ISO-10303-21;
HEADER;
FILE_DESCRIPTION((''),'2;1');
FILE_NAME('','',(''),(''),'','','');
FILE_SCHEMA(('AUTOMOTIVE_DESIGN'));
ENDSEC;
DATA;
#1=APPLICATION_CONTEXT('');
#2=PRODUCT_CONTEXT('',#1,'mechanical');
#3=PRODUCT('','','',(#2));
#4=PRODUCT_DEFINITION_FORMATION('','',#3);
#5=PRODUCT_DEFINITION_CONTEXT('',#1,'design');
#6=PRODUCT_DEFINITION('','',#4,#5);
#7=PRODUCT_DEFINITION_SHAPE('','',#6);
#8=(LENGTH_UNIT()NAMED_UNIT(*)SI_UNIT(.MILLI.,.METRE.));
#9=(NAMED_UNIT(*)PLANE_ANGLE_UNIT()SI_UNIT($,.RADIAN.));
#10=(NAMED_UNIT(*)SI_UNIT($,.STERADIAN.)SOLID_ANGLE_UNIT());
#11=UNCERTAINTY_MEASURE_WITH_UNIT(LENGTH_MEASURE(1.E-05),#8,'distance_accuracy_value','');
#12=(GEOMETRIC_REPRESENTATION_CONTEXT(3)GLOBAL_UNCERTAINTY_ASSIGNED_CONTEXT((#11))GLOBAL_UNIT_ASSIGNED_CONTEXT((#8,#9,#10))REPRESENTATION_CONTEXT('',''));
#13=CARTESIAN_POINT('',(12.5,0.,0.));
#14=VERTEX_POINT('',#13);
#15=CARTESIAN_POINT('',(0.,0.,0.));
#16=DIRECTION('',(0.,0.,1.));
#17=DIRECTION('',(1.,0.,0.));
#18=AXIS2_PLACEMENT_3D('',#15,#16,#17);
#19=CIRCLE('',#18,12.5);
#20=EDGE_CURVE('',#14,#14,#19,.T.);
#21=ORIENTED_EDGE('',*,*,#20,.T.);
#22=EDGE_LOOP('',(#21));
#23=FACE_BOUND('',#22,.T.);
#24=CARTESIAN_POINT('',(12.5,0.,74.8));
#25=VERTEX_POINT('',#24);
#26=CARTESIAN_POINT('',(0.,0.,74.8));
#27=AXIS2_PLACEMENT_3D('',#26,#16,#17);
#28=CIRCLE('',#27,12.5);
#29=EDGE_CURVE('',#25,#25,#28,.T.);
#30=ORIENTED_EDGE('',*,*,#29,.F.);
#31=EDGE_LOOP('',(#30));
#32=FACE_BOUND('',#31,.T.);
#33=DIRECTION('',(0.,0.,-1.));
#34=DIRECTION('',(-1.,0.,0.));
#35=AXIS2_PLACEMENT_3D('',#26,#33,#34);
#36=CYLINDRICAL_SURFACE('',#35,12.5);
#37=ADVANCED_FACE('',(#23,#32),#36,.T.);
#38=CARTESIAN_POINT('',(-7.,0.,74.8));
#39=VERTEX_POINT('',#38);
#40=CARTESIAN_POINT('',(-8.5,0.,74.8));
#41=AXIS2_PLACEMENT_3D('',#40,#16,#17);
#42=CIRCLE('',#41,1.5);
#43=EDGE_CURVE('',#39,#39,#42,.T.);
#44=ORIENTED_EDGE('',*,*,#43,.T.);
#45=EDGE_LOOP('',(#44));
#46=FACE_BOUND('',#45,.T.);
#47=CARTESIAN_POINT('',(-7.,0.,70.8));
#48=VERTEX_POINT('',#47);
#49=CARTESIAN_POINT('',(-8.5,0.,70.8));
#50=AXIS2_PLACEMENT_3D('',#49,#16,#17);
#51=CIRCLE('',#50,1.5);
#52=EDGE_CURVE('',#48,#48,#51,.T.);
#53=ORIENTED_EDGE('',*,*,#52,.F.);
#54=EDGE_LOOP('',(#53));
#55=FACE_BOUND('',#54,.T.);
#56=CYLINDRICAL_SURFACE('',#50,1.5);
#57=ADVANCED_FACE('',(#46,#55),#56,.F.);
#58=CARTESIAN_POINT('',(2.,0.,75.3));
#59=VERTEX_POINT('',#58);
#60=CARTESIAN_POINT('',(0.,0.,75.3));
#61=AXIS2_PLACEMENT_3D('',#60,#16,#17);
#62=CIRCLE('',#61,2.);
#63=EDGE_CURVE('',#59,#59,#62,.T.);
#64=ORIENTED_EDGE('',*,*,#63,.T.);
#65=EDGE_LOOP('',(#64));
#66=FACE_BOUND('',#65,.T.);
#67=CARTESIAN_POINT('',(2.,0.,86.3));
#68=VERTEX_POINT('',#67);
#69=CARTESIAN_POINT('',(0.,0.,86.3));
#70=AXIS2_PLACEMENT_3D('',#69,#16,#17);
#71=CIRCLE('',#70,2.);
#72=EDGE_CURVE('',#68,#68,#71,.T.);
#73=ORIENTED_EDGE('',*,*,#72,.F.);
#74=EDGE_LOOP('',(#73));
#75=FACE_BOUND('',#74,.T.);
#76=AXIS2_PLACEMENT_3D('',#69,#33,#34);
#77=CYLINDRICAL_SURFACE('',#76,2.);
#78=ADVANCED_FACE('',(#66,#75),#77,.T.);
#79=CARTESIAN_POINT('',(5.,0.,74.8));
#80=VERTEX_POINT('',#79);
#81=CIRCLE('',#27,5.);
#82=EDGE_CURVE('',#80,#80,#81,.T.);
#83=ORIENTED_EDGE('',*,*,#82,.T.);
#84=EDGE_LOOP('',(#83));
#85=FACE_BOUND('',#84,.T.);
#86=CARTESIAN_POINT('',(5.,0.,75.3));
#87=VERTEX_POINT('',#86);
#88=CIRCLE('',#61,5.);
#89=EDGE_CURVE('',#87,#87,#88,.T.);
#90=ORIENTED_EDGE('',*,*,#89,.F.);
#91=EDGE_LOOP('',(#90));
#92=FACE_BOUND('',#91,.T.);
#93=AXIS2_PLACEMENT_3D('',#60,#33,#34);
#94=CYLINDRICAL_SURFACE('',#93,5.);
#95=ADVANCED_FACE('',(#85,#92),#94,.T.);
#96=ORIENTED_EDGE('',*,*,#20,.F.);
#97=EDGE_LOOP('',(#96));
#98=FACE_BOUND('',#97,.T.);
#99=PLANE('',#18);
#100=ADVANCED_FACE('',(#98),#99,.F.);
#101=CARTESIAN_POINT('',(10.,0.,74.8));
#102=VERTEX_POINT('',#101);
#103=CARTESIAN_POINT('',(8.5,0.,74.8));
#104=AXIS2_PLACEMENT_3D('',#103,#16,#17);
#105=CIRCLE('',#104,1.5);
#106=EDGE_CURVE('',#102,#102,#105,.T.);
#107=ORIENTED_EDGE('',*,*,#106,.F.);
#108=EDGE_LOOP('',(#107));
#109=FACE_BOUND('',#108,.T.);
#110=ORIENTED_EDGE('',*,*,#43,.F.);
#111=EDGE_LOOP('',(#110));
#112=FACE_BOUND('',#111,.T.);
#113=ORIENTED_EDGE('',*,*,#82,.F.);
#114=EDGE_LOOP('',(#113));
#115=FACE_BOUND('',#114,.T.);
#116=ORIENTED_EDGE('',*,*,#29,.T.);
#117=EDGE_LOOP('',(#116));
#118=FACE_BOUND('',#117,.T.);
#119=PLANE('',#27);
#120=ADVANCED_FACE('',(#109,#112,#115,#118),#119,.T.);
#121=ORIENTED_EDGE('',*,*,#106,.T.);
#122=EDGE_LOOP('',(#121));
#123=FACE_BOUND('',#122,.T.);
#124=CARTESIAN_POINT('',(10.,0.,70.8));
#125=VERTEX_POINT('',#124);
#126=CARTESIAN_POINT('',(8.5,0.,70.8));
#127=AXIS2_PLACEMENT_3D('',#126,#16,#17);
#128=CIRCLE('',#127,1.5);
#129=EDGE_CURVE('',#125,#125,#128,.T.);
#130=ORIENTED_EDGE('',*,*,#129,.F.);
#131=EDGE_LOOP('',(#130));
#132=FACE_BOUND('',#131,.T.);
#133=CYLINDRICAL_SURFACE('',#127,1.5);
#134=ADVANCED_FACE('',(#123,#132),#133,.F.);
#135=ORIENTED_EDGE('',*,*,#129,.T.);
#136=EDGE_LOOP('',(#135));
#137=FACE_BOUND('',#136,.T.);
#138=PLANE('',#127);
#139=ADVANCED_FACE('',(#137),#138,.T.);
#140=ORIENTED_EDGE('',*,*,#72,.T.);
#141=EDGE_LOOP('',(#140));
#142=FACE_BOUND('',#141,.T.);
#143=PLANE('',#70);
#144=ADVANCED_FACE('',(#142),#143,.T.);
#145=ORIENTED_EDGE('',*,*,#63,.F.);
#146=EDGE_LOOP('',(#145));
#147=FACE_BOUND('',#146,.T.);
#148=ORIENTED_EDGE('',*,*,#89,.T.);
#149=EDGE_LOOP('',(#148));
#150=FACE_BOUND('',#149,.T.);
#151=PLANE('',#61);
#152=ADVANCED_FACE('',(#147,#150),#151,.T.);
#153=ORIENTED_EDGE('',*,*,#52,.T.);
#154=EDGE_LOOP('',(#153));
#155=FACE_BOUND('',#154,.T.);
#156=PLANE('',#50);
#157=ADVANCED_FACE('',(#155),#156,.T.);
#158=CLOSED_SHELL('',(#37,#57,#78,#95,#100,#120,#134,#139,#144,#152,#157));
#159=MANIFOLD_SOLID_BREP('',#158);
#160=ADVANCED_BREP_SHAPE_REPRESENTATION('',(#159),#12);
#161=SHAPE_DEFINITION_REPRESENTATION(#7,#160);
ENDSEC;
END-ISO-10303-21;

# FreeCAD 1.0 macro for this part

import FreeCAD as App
import Part
import Sketcher
from FreeCAD import Vector
Q = App.Units.Quantity

doc = App.newDocument("Part")
body = doc.addObject("PartDesign::Body", "Body")

# Sketch on XY plane
sketch1 = body.newObject("Sketcher::SketchObject", "Sketch")
sketch1.AttachmentSupport = (doc.getObject("XY_Plane"), [""])
sketch1.MapMode = "FlatFace"
sketch1.addGeometry(Part.Circle(Vector(0, 0, 0), Vector(0, 0, 1), 12), False)
sketch1.addConstraint(Sketcher.Constraint("Coincident", 0, 3, -1, 1))
sketch1.addConstraint(Sketcher.Constraint("Diameter", 0, Q("25 mm")))
pad1 = body.newObject("PartDesign::Pad", "Pad")
pad1.Profile = sketch1
pad1.Length = 74.8

# Sketch on XY plane
sketch2 = body.newObject("Sketcher::SketchObject", "Sketch001")
sketch2.AttachmentSupport = (doc.getObject("XY_Plane"), [""])
sketch2.MapMode = "FlatFace"
sketch2.AttachmentOffset = App.Placement(Vector(0, 0, 74.8), App.Rotation())
sketch2.addGeometry(Part.Circle(Vector(0, 0, 0), Vector(0, 0, 1), 5), False)
sketch2.addConstraint(Sketcher.Constraint("Coincident", 0, 3, -1, 1))
sketch2.addConstraint(Sketcher.Constraint("Diameter", 0, Q("10 mm")))
pad2 = body.newObject("PartDesign::Pad", "Pad001")
pad2.Profile = sketch2
pad2.Length = 0.5

# Sketch on XY plane
sketch3 = body.newObject("Sketcher::SketchObject", "Sketch002")
sketch3.AttachmentSupport = (doc.getObject("XY_Plane"), [""])
sketch3.MapMode = "FlatFace"
sketch3.AttachmentOffset = App.Placement(Vector(0, 0, 75.3), App.Rotation())
sketch3.addGeometry(Part.Circle(Vector(0, 0, 0), Vector(0, 0, 1), 2), False)
sketch3.addConstraint(Sketcher.Constraint("Coincident", 0, 3, -1, 1))
sketch3.addConstraint(Sketcher.Constraint("Diameter", 0, Q("4 mm")))
pad3 = body.newObject("PartDesign::Pad", "Pad002")
pad3.Profile = sketch3
pad3.Length = 11

# Sketch on XY plane
sketch4 = body.newObject("Sketcher::SketchObject", "Sketch003")
sketch4.AttachmentSupport = (doc.getObject("XY_Plane"), [""])
sketch4.MapMode = "FlatFace"
sketch4.AttachmentOffset = App.Placement(Vector(0, 0, 74.8), App.Rotation())
sketch4.addGeometry(Part.Circle(Vector(-8.5, 0, 0), Vector(0, 0, 1), 1.5), False)
sketch4.addGeometry(Part.Circle(Vector(8.5, 0, 0), Vector(0, 0, 1), 1.5), False)
sketch4.addConstraint(Sketcher.Constraint("Equal", 0, 1))
sketch4.addConstraint(Sketcher.Constraint("Symmetric", 0, 3, 1, 3, -1, 1))
sketch4.addConstraint(Sketcher.Constraint("PointOnObject", 0, 3, -1))
sketch4.addConstraint(Sketcher.Constraint("Diameter", 0, Q("3 mm")))
sketch4.addConstraint(Sketcher.Constraint("DistanceX", 0, 3, 1, 3, Q("17 mm")))
pocket1 = body.newObject("PartDesign::Pocket", "Pocket")
pocket1.Profile = sketch4
pocket1.Length = 4

doc.recompute()
